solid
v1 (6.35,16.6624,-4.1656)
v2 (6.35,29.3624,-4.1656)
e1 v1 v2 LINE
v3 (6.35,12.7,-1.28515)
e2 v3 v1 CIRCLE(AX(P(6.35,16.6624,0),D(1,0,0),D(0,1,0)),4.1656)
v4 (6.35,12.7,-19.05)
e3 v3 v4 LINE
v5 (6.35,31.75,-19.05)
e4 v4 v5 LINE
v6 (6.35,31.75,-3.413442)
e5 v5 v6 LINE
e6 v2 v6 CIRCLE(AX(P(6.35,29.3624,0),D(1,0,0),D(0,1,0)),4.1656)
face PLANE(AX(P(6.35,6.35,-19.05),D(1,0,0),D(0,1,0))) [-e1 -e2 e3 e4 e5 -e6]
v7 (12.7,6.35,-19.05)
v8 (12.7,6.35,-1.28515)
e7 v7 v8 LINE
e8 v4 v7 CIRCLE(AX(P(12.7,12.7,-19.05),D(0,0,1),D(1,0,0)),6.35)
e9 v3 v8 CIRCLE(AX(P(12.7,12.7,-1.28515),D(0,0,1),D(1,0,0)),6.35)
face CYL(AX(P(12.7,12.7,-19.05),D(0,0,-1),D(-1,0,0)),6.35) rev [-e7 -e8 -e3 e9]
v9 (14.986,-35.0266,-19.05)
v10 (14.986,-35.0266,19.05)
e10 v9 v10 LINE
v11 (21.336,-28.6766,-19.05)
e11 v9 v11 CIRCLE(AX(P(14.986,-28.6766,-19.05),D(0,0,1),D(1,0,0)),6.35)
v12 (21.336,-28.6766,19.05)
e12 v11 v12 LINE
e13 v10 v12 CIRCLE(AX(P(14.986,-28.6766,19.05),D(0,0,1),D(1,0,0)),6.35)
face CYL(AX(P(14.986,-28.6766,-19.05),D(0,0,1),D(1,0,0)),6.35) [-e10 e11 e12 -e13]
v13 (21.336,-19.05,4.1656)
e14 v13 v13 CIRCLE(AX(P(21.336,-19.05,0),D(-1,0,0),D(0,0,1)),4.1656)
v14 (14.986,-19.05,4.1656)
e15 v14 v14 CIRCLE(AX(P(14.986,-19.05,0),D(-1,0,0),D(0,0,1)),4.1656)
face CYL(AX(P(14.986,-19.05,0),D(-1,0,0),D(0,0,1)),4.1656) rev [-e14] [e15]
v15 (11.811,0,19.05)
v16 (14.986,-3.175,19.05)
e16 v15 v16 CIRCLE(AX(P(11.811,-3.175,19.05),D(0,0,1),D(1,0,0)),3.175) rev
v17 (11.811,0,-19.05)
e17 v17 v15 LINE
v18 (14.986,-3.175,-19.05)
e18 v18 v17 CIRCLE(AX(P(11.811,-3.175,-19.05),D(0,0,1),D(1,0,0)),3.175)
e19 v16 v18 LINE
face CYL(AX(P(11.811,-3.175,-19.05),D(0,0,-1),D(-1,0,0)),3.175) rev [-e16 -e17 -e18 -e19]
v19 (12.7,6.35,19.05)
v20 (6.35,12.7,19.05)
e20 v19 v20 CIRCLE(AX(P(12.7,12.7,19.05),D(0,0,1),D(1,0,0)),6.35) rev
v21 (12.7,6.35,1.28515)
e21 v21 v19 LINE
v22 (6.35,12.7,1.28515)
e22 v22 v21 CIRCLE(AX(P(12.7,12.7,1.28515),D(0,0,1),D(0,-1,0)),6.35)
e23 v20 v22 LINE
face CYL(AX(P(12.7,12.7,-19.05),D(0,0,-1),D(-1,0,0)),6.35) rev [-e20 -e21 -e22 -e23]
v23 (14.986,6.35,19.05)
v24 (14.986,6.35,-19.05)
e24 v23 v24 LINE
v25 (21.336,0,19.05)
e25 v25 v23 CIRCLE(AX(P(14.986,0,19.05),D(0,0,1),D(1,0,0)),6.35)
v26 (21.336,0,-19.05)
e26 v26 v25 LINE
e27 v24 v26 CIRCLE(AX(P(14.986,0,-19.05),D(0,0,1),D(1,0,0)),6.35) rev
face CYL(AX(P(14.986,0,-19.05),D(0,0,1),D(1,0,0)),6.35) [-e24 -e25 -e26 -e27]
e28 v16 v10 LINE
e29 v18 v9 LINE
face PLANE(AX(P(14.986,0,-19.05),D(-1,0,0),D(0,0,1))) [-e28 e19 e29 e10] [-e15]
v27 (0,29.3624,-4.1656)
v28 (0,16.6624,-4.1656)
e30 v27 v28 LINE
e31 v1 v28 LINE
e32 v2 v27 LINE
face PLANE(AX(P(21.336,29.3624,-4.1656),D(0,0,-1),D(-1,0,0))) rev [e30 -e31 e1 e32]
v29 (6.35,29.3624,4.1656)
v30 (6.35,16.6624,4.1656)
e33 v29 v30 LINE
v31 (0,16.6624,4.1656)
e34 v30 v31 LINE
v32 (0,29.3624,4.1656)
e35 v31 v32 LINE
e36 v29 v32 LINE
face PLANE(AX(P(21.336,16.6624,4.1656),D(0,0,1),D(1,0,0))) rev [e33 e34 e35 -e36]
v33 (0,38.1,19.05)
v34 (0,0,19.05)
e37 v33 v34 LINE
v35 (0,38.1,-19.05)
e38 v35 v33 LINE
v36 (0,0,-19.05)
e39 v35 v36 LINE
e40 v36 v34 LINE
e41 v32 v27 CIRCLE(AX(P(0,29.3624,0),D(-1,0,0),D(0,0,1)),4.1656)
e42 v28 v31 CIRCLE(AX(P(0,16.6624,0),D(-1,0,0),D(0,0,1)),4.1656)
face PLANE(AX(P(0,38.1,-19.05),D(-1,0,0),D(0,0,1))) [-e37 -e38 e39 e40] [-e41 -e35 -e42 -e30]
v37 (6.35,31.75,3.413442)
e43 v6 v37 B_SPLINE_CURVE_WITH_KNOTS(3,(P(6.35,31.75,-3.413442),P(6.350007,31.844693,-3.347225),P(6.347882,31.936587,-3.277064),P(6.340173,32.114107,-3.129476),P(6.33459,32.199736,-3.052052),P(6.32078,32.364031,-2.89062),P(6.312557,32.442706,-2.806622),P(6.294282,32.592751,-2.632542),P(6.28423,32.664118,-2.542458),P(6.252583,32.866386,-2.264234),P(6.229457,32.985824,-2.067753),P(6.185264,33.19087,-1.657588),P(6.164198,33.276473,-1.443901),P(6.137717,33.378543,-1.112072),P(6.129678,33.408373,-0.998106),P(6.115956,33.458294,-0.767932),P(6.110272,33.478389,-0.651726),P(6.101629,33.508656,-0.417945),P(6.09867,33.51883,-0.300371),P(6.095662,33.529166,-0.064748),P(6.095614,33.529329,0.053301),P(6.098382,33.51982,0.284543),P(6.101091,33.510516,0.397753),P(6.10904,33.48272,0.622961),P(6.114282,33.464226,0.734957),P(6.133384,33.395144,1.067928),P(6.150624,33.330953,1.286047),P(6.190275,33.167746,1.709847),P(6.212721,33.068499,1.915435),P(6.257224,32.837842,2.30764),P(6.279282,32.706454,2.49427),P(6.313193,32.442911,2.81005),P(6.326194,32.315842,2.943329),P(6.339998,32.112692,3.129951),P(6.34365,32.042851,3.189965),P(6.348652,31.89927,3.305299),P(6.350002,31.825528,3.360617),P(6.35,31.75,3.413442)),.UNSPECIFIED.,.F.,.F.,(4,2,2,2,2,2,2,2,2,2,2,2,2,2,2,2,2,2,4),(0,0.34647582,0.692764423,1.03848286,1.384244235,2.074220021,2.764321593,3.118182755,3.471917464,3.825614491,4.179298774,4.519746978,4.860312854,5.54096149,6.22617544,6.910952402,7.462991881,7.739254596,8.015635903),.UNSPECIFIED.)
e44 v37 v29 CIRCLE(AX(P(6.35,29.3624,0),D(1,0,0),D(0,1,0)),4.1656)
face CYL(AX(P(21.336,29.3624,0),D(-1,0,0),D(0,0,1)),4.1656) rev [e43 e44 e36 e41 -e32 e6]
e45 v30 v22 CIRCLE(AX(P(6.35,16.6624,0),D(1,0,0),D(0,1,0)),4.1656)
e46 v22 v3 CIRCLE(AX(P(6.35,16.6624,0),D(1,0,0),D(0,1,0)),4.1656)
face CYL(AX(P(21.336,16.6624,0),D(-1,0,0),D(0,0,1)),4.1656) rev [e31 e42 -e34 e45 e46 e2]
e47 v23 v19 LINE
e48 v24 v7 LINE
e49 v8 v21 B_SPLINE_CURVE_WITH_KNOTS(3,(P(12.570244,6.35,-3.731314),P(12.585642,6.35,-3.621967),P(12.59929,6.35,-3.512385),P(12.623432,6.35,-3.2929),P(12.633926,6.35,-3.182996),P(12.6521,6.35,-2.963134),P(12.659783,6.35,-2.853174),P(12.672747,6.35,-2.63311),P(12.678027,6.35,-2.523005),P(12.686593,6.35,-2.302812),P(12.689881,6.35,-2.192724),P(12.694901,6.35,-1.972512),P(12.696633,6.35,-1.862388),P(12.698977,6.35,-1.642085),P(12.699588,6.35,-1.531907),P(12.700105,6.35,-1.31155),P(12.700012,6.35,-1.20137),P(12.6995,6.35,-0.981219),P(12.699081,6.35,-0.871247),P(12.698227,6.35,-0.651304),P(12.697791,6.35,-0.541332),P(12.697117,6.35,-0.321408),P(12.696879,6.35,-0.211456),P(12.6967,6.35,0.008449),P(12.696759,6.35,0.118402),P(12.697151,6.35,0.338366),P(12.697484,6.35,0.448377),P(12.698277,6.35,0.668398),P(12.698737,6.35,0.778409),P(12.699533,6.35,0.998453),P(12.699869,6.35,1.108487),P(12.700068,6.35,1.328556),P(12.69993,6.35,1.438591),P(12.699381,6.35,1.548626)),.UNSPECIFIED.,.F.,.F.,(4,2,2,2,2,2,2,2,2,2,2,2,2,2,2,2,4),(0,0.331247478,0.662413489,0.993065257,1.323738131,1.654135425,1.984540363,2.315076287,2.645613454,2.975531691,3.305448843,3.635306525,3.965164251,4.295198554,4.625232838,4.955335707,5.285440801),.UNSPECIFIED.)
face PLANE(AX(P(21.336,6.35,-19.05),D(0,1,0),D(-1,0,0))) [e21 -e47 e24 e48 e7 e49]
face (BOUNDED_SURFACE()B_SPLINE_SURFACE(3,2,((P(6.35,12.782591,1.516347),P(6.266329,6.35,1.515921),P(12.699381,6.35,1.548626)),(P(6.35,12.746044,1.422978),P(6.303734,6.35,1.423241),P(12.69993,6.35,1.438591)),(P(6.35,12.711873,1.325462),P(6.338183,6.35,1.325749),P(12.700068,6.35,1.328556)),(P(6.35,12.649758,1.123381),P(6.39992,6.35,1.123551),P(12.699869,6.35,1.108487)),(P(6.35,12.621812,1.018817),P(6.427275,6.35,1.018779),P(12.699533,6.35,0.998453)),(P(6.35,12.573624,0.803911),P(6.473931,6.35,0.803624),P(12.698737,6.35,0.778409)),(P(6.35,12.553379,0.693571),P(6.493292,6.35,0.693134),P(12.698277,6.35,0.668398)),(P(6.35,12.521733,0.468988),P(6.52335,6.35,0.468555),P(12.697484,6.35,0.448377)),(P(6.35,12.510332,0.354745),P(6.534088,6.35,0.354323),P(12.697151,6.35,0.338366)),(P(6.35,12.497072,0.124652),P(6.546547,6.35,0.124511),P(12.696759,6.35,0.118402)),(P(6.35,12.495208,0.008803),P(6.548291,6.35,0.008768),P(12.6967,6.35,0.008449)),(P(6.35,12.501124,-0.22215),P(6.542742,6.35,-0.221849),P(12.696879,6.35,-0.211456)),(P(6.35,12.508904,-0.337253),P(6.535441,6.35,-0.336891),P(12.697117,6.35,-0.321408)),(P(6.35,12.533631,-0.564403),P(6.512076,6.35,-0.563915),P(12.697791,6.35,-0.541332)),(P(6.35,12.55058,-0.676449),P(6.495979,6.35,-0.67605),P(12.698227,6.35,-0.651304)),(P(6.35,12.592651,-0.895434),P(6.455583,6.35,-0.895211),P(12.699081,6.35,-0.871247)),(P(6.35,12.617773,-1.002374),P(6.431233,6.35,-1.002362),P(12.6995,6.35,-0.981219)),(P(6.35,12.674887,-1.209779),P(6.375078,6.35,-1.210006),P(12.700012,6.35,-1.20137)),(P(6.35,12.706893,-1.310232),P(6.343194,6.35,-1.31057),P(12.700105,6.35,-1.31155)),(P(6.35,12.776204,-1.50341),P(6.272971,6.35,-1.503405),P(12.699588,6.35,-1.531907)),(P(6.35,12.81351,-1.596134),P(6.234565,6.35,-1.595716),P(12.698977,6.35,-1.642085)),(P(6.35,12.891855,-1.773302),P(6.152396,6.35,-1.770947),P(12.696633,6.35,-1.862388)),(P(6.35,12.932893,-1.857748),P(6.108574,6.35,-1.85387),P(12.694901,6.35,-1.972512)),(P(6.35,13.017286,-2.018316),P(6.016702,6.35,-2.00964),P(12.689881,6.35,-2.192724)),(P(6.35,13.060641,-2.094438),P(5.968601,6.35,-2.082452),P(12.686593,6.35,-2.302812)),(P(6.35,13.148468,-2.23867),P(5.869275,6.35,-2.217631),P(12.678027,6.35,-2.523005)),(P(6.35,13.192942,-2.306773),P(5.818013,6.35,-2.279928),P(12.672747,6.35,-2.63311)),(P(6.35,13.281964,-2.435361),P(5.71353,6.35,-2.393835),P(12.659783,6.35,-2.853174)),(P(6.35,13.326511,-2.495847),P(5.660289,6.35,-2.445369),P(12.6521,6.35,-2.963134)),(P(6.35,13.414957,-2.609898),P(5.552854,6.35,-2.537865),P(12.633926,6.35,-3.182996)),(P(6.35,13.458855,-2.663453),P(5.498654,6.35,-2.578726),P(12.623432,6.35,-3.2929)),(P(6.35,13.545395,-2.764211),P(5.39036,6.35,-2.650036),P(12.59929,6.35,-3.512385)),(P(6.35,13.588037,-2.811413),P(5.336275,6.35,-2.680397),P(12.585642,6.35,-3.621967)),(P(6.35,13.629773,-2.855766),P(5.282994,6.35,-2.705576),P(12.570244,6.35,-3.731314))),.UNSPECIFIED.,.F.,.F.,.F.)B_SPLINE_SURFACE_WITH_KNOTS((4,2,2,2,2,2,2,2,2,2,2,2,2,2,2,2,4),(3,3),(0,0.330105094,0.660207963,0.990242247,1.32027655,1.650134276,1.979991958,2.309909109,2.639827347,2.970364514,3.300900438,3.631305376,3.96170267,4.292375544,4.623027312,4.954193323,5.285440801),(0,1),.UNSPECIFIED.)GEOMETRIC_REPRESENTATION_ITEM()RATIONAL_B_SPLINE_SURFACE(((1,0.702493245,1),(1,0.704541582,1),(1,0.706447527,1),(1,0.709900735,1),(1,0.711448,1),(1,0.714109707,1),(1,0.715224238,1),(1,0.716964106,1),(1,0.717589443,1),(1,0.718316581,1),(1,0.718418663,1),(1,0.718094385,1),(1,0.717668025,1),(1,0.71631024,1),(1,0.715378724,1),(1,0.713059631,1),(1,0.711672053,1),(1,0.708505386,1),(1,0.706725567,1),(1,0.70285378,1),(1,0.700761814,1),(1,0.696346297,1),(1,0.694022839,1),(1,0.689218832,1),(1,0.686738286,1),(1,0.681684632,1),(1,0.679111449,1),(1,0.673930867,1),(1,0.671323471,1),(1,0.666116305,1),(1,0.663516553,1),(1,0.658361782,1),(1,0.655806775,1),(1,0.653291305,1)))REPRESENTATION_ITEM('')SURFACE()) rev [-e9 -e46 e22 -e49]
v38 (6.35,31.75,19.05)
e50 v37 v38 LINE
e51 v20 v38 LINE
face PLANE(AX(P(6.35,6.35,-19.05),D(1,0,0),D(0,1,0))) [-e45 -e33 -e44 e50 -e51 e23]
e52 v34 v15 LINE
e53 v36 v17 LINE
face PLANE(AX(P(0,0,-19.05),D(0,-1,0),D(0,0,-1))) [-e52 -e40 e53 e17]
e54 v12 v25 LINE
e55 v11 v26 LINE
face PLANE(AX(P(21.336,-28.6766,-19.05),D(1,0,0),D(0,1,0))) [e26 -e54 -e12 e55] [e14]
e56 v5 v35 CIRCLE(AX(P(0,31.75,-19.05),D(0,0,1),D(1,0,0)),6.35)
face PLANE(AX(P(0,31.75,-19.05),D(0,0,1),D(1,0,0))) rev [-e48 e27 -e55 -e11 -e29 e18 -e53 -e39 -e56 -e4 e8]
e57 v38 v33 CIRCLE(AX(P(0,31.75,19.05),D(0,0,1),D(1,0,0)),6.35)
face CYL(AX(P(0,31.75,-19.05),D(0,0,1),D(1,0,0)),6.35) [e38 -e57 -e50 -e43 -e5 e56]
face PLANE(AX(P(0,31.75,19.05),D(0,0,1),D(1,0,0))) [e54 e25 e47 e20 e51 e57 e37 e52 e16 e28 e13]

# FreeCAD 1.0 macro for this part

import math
import FreeCAD as App
import Part
import Sketcher
Q = App.Units.Quantity


def edges_at(feature, points):
    """Names of the edges that pass closest to the given points."""
    edges = feature.Shape.Edges
    near = lambda p: min(range(len(edges)), key=lambda i: edges[i].distToShape(Part.Vertex(*p))[0])
    return sorted({f"Edge{near(p) + 1}" for p in points})

doc = App.newDocument("Part")
params = doc.addObject("Spreadsheet::Sheet", "Params")
for row, (alias, value) in enumerate([
    ("sketch1_height", "1 in"),
    ("sketch1_radius", "0.25 in"),
    ("sketch1_width", "0.59 in"),
    ("sketch1_height2", "1.379 in"),
    ("pad1_length", "1.5 in"),
    ("sketch2_width", "0.5 in"),
    ("sketch2_radius", "0.164 in"),
    ("sketch3_diameter", "0.328 in"),
    ("hole_diameter", "0.328 in"),
    ("fillet_radius", "0.125 in"),
    ("fillet2_radius", "0.25 in"),
], start=1):
    params.set(f"A{row}", alias)
    params.set(f"B{row}", "=" + value)
    params.setAlias(f"B{row}", alias)

body = doc.addObject("PartDesign::Body", "Body")

# Sketch on XY plane
sketch1 = body.newObject("Sketcher::SketchObject", "Sketch")
sketch1.AttachmentSupport = (doc.getObject("XY_Plane"), [""])
sketch1.MapMode = "FlatFace"
sketch1.AttachmentOffset = App.Placement(App.Vector(0, 0, 0.75 * 25.4), App.Rotation())
sketch1.addGeometry([
    Part.LineSegment(App.Vector(0, 38, 0), App.Vector(0, 0, 0)),  # 0
    Part.LineSegment(App.Vector(0, 0, 0), App.Vector(15, 0, 0)),  # 1
    Part.LineSegment(App.Vector(15, 0, 0), App.Vector(15, -35, 0)),  # 2
    Part.ArcOfCircle(Part.Circle(App.Vector(15, -29, 0), App.Vector(0, 0, 1), 6), math.radians(-90), math.radians(0)),  # 3
    Part.LineSegment(App.Vector(21, -29, 0), App.Vector(21, 6, 0)),  # 4
    Part.LineSegment(App.Vector(21, 6, 0), App.Vector(6, 6, 0)),  # 5
    Part.LineSegment(App.Vector(6, 6, 0), App.Vector(6, 32, 0)),  # 6
    Part.ArcOfCircle(Part.Circle(App.Vector(0, 32, 0), App.Vector(0, 0, 1), 6), math.radians(0), math.radians(90)),  # 7
], False)
sketch1.addConstraint([
    Sketcher.Constraint("Coincident", 0, 2, 1, 1),
    Sketcher.Constraint("Coincident", 1, 2, 2, 1),
    Sketcher.Constraint("Coincident", 2, 2, 3, 1),
    Sketcher.Constraint("Tangent", 3, 2, 4, 1),
    Sketcher.Constraint("Coincident", 4, 2, 5, 1),
    Sketcher.Constraint("Coincident", 5, 2, 6, 1),
    Sketcher.Constraint("Tangent", 6, 2, 7, 1),
    Sketcher.Constraint("Coincident", 7, 2, 0, 1),
    Sketcher.Constraint("Vertical", 0),
    Sketcher.Constraint("Horizontal", 1),
    Sketcher.Constraint("Vertical", 2),
    Sketcher.Constraint("Vertical", 4),
    Sketcher.Constraint("Horizontal", 5),
    Sketcher.Constraint("Vertical", 6),
    Sketcher.Constraint("Coincident", 0, 2, -1, 1),
    Sketcher.Constraint("Equal", 3, 7),
    Sketcher.Constraint("PointOnObject", 7, 3, -2),
    Sketcher.Constraint("Vertical", 3, 3, 1, 2),
    Sketcher.Constraint("Equal", 2, 4),
    Sketcher.Constraint("DistanceY", 6, 1, 6, 2, Q("1 in")),
    Sketcher.Constraint("Radius", 3, Q("0.25 in")),
    Sketcher.Constraint("DistanceX", 1, 1, 1, 2, Q("0.59 in")),
    Sketcher.Constraint("DistanceY", 2, 2, 2, 1, Q("1.379 in")),
])
sketch1.setExpression("Constraints[19]", "Params.sketch1_height")
sketch1.setExpression("Constraints[20]", "Params.sketch1_radius")
sketch1.setExpression("Constraints[21]", "Params.sketch1_width")
sketch1.setExpression("Constraints[22]", "Params.sketch1_height2")
pad1 = body.newObject("PartDesign::Pad", "Pad")
pad1.Profile = sketch1
pad1.setExpression("Length", "Params.pad1_length")
pad1.Reversed = True

# Sketch on YZ plane
sketch2 = body.newObject("Sketcher::SketchObject", "Sketch001")
sketch2.AttachmentSupport = (doc.getObject("YZ_Plane"), [""])
sketch2.MapMode = "FlatFace"
sketch2.addGeometry([
    Part.LineSegment(App.Vector(29.4, -4.2, 0), App.Vector(16.7, -4.2, 0)),
    Part.ArcOfCircle(Part.Circle(App.Vector(16.7, 0, 0), App.Vector(0, 0, 1), 4.2), math.radians(90), math.radians(270)),
    Part.LineSegment(App.Vector(16.7, 4.2, 0), App.Vector(29.4, 4.2, 0)),
    Part.ArcOfCircle(Part.Circle(App.Vector(29.4, 0, 0), App.Vector(0, 0, 1), 4.2), math.radians(-90), math.radians(90)),
], False)
sketch2.addConstraint([
    Sketcher.Constraint("Tangent", 0, 2, 1, 2),
    Sketcher.Constraint("Tangent", 1, 1, 2, 1),
    Sketcher.Constraint("Tangent", 2, 2, 3, 2),
    Sketcher.Constraint("Tangent", 3, 1, 0, 1),
    Sketcher.Constraint("Horizontal", 0),
    Sketcher.Constraint("Horizontal", 2),
    Sketcher.Constraint("PointOnObject", 1, 3, -1),
    Sketcher.Constraint("DistanceX", 0, 2, 0, 1, Q("0.5 in")),
    Sketcher.Constraint("Radius", 1, Q("0.164 in")),
    Sketcher.Constraint("DistanceX", -1, 1, 1, 3, Q("0.656 in")),
])
sketch2.setExpression("Constraints[7]", "Params.sketch2_width")
sketch2.setExpression("Constraints[8]", "Params.sketch2_radius")
pocket1 = body.newObject("PartDesign::Pocket", "Pocket")
pocket1.Profile = sketch2
pocket1.Type = "ThroughAll"
pocket1.Reversed = True

# Sketch on YZ plane
sketch3 = body.newObject("Sketcher::SketchObject", "Sketch002")
sketch3.AttachmentSupport = (doc.getObject("YZ_Plane"), [""])
sketch3.MapMode = "FlatFace"
sketch3.AttachmentOffset = App.Placement(App.Vector(0, 0, 0.59 * 25.4), App.Rotation())
sketch3.addGeometry(Part.Circle(App.Vector(-19.1, 0, 0), App.Vector(0, 0, 1), 4.2), False)
sketch3.addConstraint([
    Sketcher.Constraint("PointOnObject", 0, 3, -1),
    Sketcher.Constraint("Diameter", 0, Q("0.328 in")),
    Sketcher.Constraint("DistanceX", 0, 3, -1, 1, Q("0.75 in")),
])
sketch3.setExpression("Constraints[1]", "Params.sketch3_diameter")
doc.recompute()
hole = body.newObject("PartDesign::Hole", "Hole")
hole.Profile = sketch3
hole.ThreadType = "None"
hole.setExpression("Diameter", "Params.hole_diameter")
hole.DepthType = "ThroughAll"
hole.Reversed = True
doc.recompute()

fillet = body.newObject("PartDesign::Fillet", "Fillet")
fillet.Base = (hole, edges_at(hole, [(14.986, 0, 0)]))
fillet.setExpression("Radius", "Params.fillet_radius")
doc.recompute()

fillet2 = body.newObject("PartDesign::Fillet", "Fillet001")
fillet2.Base = (fillet, edges_at(fillet, [(6.35, 6.35, 0), (21.336, 6.35, 0)]))
fillet2.setExpression("Radius", "Params.fillet2_radius")

doc.recompute()
